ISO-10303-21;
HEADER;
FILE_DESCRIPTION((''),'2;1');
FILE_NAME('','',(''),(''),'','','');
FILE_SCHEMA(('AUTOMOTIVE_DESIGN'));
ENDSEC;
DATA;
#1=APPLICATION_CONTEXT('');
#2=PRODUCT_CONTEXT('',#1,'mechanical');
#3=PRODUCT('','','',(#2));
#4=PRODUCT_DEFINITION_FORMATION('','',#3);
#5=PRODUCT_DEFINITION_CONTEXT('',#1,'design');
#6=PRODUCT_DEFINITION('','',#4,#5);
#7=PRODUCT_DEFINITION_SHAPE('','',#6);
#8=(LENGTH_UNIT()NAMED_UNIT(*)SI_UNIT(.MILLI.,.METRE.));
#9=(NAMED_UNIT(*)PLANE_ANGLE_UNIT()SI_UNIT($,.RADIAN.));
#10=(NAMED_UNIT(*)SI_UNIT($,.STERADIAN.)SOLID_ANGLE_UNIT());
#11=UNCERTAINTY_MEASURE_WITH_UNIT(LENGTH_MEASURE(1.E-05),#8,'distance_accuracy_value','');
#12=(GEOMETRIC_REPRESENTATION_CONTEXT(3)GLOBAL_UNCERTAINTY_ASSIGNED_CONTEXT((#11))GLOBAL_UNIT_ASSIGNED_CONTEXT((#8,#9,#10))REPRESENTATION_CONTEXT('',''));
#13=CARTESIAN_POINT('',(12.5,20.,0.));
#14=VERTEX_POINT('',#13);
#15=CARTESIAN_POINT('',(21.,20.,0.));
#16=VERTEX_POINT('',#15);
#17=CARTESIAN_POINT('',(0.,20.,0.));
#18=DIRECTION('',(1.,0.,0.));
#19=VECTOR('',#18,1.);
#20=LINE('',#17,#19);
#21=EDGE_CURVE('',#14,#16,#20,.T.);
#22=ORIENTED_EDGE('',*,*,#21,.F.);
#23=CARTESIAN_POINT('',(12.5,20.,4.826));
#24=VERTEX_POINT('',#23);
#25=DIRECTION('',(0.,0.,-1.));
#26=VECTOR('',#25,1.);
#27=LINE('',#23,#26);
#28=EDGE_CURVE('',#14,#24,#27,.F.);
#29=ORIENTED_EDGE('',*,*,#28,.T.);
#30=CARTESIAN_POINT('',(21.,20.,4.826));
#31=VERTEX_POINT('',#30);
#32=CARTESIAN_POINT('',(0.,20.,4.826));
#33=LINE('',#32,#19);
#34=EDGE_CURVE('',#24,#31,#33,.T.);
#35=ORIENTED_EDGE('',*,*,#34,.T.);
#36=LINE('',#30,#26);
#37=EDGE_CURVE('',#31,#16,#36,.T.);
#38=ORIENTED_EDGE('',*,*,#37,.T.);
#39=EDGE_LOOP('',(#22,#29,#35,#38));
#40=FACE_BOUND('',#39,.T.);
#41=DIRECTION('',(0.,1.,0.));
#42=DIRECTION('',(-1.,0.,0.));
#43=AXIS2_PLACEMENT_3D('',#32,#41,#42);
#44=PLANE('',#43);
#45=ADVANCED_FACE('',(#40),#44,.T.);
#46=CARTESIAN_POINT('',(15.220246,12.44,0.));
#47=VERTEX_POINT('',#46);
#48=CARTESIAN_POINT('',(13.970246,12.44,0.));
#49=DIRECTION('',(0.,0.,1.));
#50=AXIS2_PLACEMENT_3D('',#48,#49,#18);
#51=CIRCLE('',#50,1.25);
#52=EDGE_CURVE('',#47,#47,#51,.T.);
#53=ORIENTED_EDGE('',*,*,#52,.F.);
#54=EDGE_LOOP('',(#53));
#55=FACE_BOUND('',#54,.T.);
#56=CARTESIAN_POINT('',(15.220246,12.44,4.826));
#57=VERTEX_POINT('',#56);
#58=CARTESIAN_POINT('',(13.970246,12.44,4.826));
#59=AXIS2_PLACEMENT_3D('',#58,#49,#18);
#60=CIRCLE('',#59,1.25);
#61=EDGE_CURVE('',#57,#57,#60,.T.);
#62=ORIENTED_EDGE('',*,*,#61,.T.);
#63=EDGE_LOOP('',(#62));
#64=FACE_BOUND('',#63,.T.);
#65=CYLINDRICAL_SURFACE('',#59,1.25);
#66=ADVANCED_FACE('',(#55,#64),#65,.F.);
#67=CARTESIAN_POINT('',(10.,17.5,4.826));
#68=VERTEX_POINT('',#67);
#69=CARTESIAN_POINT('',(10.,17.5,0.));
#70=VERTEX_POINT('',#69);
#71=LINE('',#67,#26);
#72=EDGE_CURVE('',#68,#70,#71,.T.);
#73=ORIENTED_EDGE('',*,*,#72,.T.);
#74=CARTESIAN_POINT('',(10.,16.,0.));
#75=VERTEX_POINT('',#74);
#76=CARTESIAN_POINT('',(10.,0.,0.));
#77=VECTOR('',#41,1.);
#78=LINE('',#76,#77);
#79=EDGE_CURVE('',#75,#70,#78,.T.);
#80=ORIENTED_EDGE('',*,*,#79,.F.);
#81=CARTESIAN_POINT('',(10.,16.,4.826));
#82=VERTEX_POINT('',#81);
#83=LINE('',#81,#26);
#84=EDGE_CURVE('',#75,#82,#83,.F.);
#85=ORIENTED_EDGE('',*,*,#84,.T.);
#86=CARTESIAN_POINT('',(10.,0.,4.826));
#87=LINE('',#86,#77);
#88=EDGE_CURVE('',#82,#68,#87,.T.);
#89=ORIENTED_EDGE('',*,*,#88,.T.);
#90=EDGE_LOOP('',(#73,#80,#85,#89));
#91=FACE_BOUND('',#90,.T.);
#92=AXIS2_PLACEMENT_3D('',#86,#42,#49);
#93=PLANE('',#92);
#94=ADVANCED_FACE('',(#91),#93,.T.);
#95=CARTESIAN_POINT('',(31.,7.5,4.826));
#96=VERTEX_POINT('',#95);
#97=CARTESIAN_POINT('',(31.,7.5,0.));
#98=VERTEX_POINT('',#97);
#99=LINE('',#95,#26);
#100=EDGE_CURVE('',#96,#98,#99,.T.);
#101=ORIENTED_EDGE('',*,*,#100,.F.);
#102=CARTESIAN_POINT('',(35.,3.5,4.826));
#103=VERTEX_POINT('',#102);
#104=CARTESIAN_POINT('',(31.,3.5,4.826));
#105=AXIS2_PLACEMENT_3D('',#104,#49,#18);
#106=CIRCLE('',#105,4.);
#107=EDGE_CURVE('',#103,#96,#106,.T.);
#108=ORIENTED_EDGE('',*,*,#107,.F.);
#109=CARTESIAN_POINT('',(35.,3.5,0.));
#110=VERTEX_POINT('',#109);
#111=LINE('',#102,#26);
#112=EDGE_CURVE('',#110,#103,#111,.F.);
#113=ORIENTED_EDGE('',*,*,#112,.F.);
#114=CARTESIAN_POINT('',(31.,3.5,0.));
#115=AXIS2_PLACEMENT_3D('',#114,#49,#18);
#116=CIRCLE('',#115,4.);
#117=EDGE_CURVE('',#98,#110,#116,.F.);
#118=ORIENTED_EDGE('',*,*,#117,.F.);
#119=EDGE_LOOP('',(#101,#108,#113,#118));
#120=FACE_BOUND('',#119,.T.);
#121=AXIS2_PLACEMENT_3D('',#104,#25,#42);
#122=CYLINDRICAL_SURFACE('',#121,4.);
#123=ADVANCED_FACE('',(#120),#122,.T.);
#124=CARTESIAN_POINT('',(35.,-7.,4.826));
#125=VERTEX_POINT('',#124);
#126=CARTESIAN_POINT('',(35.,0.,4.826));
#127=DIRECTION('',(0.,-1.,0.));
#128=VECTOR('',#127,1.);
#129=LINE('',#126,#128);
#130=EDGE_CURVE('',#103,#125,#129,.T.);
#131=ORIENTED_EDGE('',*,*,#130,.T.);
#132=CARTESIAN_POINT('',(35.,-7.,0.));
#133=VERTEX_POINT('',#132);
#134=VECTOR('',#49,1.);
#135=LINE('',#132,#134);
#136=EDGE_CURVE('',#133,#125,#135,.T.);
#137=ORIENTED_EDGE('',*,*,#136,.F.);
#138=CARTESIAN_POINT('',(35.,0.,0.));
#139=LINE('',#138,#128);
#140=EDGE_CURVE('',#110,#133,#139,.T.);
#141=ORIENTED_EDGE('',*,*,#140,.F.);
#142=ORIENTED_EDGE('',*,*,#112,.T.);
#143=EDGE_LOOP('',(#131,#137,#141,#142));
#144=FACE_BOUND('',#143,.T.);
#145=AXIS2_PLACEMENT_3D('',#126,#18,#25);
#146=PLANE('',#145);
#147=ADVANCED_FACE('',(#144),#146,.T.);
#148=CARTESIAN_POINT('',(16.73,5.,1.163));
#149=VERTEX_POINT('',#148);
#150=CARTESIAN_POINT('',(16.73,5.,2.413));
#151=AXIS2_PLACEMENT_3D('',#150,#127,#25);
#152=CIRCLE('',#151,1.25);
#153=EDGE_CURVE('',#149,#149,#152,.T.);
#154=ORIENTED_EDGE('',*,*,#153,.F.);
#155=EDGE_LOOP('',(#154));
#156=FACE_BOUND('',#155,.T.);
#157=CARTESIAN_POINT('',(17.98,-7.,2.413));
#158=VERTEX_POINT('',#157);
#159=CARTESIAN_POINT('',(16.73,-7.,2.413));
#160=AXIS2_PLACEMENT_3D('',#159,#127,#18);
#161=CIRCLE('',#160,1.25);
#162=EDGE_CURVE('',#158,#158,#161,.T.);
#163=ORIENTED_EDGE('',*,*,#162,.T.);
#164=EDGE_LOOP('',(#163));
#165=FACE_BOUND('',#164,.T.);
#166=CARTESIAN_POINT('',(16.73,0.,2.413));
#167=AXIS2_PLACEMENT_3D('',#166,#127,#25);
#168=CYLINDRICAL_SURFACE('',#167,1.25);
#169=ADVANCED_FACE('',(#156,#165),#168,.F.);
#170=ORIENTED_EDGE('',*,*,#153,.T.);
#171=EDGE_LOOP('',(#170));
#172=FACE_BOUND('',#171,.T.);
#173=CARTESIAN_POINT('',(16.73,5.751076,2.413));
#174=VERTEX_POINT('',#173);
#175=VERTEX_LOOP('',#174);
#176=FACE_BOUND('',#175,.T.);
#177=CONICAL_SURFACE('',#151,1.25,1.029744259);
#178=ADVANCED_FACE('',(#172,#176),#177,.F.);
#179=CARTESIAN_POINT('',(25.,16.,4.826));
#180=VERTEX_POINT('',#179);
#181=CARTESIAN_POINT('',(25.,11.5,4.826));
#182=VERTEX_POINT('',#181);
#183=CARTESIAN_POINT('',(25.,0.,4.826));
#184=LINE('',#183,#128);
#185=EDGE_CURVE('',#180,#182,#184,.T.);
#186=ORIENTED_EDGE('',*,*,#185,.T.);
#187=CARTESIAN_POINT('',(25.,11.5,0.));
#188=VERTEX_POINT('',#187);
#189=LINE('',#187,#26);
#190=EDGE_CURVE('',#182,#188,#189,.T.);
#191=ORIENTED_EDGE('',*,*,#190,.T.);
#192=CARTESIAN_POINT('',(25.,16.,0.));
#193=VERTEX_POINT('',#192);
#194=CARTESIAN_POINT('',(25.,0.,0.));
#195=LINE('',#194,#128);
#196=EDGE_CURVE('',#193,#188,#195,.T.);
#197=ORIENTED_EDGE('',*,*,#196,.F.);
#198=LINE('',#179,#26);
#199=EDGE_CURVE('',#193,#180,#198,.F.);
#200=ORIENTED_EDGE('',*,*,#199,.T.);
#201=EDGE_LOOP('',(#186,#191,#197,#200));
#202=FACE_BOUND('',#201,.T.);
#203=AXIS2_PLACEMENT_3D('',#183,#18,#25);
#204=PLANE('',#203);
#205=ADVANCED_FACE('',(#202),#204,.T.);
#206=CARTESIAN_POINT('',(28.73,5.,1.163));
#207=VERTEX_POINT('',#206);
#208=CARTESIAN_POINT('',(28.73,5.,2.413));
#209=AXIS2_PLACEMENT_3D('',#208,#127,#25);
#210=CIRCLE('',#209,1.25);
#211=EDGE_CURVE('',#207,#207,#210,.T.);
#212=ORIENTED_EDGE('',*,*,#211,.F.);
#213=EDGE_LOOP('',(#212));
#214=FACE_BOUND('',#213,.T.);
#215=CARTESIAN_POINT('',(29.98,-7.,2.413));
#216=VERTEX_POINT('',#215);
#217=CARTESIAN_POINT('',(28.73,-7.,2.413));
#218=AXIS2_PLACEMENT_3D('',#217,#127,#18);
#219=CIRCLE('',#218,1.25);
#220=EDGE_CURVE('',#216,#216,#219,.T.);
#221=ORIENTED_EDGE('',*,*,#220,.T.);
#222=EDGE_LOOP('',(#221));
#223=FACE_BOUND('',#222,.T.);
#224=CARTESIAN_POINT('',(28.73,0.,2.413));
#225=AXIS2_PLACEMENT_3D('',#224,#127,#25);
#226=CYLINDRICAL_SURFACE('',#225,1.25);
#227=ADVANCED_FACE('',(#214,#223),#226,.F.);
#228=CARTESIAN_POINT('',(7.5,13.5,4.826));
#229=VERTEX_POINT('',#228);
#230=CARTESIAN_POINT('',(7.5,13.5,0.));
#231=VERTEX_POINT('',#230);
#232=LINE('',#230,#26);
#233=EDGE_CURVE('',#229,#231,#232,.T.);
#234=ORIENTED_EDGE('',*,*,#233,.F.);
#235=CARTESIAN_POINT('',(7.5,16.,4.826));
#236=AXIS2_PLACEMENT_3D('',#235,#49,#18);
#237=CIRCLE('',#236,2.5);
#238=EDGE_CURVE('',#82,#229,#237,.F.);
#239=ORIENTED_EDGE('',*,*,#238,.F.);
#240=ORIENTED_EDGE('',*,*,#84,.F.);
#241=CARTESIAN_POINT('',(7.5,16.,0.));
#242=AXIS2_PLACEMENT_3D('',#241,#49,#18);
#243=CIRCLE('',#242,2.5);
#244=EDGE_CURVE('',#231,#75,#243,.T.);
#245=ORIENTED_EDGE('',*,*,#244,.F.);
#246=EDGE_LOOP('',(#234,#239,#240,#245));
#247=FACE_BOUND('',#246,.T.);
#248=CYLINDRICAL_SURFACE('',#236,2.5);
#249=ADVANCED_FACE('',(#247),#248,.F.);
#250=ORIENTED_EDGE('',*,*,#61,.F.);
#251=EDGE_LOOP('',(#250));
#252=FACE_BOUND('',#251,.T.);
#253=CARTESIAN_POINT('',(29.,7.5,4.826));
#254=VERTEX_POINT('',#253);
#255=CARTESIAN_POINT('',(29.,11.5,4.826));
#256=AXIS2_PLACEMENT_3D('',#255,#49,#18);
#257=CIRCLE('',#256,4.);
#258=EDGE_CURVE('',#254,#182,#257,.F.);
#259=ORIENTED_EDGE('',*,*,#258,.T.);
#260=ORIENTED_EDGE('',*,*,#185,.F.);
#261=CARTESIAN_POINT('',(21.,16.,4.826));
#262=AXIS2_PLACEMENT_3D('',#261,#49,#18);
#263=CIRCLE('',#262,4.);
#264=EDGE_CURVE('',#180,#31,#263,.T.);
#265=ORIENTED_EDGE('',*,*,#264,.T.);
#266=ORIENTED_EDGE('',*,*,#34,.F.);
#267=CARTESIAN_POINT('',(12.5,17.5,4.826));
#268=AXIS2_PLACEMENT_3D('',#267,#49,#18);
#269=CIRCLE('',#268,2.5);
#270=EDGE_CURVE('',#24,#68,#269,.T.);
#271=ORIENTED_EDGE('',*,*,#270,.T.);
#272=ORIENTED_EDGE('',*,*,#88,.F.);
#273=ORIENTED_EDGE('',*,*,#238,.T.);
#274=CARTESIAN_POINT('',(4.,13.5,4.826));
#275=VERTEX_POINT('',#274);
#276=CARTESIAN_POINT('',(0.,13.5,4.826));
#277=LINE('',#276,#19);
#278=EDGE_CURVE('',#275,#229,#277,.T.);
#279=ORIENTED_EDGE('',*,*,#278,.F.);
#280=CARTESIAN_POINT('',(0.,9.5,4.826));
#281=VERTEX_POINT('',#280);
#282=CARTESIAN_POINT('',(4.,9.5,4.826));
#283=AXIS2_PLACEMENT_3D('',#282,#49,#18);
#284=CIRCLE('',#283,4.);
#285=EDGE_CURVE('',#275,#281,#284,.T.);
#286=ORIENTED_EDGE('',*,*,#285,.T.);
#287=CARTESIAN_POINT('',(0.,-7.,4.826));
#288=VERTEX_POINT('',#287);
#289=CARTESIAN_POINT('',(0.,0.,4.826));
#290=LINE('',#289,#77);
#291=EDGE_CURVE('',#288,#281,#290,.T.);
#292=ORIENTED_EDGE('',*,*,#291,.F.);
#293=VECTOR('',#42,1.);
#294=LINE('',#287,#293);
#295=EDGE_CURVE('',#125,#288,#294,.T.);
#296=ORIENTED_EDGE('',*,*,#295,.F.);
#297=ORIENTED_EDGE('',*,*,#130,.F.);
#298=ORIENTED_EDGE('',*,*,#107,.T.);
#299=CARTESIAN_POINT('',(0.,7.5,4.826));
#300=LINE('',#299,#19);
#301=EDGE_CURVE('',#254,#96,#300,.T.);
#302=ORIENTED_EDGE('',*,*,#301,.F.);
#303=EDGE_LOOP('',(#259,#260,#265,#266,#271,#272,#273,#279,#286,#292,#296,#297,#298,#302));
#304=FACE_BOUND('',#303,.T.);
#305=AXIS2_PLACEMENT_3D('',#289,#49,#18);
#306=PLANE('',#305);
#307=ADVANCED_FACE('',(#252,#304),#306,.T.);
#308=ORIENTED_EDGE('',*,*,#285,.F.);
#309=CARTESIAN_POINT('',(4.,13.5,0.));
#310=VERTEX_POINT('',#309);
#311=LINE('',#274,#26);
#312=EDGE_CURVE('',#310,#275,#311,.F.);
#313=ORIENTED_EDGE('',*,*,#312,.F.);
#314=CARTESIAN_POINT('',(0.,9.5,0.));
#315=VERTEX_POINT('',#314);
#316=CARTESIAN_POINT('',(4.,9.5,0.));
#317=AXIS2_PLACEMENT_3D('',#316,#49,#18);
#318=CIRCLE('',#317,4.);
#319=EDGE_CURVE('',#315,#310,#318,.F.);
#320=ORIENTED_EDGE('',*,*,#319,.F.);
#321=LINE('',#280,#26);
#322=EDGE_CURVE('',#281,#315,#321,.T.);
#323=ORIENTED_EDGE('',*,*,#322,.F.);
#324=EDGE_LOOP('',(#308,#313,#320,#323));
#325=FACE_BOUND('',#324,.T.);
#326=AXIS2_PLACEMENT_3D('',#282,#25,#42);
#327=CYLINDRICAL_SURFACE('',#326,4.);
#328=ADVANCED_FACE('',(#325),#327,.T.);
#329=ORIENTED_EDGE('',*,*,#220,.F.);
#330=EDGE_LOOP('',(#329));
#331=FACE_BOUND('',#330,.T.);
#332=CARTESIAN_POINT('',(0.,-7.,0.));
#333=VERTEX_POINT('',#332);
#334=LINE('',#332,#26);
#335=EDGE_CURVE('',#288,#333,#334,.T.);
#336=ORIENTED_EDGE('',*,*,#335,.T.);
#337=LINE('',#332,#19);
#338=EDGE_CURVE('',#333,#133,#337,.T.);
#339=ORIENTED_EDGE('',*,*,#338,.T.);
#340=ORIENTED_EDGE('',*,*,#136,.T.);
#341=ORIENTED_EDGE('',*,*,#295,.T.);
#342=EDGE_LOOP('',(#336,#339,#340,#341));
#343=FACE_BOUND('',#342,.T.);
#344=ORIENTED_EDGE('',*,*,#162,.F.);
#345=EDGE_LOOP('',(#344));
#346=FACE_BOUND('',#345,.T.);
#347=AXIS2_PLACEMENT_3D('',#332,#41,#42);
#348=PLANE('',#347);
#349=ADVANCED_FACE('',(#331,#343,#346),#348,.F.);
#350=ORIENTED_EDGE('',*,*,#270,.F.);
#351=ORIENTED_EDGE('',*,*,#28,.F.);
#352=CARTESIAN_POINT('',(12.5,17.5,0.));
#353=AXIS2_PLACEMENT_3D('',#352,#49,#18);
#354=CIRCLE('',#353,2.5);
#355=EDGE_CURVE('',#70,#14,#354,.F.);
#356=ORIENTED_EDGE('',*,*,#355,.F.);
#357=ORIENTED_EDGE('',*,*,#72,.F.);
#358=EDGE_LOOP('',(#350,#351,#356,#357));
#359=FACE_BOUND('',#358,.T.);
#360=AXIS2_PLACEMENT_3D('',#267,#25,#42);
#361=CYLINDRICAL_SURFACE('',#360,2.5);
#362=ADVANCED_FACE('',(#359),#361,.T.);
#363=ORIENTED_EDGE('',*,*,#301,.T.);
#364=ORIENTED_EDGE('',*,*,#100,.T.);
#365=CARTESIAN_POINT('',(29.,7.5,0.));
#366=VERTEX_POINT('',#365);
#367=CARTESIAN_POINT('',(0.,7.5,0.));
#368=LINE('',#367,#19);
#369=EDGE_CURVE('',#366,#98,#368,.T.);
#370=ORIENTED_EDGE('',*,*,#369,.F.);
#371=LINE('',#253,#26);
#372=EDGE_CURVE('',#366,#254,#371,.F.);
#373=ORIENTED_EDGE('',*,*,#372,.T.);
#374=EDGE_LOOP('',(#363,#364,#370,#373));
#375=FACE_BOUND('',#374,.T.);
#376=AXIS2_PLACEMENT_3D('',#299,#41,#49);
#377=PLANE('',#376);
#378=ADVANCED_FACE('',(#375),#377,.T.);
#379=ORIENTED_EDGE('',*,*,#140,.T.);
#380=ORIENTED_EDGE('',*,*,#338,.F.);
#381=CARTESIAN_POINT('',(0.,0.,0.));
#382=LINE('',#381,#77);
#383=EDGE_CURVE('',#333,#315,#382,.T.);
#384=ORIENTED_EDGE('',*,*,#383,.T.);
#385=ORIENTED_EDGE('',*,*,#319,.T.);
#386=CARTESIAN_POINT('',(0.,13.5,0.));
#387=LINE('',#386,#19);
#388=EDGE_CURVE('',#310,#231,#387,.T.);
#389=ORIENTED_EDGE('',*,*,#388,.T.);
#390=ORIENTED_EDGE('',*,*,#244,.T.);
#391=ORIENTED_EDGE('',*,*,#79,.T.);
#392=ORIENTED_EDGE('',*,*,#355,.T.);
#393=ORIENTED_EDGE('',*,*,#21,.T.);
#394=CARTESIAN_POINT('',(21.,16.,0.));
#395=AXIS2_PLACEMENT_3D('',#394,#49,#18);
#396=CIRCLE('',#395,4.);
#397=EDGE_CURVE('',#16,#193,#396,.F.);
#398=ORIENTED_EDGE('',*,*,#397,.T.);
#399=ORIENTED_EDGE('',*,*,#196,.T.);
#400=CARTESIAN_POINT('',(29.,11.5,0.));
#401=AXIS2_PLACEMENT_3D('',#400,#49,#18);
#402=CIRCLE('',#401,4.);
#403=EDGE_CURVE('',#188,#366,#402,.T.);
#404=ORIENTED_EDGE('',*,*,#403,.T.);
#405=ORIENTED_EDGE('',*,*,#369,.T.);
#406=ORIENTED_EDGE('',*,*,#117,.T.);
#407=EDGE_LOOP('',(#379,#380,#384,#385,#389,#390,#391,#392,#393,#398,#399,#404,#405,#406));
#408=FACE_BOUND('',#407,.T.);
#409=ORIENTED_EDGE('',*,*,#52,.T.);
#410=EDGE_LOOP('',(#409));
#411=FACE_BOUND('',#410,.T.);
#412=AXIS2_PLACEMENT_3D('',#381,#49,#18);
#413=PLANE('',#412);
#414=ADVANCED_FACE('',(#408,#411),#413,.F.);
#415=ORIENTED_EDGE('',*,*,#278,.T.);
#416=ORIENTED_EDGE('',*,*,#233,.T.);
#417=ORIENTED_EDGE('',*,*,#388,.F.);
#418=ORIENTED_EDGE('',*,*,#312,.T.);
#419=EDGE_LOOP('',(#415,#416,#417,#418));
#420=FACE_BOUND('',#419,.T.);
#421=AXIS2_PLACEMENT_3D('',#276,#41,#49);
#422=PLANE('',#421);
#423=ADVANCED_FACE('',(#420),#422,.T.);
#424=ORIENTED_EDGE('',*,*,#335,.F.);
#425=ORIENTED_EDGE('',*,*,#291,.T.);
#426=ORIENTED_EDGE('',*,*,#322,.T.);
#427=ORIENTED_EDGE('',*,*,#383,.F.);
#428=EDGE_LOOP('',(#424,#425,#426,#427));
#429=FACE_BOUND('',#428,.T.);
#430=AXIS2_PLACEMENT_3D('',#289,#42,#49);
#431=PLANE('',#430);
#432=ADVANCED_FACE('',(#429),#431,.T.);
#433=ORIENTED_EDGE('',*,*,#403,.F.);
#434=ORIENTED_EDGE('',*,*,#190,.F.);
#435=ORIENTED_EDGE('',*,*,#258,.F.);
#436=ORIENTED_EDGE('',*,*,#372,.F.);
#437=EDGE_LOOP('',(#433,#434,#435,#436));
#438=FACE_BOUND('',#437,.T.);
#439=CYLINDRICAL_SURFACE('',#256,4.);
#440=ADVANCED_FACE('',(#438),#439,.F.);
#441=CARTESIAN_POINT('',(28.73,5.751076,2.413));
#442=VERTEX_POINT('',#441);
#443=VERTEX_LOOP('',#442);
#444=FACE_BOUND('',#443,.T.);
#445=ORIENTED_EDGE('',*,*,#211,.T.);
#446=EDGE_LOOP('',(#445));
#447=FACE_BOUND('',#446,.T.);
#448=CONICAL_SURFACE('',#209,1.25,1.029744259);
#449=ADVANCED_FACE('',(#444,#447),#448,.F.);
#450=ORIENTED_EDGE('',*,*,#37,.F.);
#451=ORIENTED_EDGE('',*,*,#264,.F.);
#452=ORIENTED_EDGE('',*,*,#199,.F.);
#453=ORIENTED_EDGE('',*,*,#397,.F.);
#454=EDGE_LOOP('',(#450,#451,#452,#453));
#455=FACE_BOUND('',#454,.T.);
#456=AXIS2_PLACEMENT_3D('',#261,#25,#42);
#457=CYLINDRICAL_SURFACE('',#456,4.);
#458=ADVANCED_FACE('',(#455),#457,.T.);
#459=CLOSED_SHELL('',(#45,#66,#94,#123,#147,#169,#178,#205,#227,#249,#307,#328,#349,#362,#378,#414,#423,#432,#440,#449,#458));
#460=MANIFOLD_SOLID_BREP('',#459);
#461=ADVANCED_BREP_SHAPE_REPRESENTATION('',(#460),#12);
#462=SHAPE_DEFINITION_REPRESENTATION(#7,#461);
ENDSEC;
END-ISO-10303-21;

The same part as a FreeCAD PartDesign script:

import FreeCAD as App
import Part
import Sketcher

V = App.Vector
Q = App.Units.Quantity


def edges_at(feature, points):
    """Names of the edges that pass closest to the given points."""
    edges = feature.Shape.Edges
    near = lambda p: min(range(len(edges)), key=lambda i: edges[i].distToShape(Part.Vertex(*p))[0])
    return sorted({f"Edge{near(p) + 1}" for p in points})


def add_polygon(sketch, points):
    """Adds a closed chain of lines whose ends are joined by coincident constraints."""
    first, n = sketch.GeometryCount, len(points)
    for a, b in zip(points, points[1:] + points[:1]):
        sketch.addGeometry(Part.LineSegment(App.Vector(*a, 0), App.Vector(*b, 0)), False)
    for i in range(n):
        sketch.addConstraint(Sketcher.Constraint("Coincident", first + i, 2, first + (i + 1) % n, 1))

doc = App.newDocument("Part")
body = doc.addObject("PartDesign::Body", "Body")

# Sketch on XY plane
sketch1 = body.newObject("Sketcher::SketchObject", "Sketch")
sketch1.AttachmentSupport = (doc.getObject("XY_Plane"), [""])
sketch1.MapMode = "FlatFace"
add_polygon(sketch1, [(0, 14), (0, 0), (35, 0), (35, 8), (25, 8), (25, 20), (10, 20), (10, 14)])  # lines 0-7
sketch1.addConstraint([
    Sketcher.Constraint("Vertical", 0),
    Sketcher.Constraint("Horizontal", 1),
    Sketcher.Constraint("Vertical", 2),
    Sketcher.Constraint("Horizontal", 3),
    Sketcher.Constraint("Vertical", 4),
    Sketcher.Constraint("Horizontal", 5),
    Sketcher.Constraint("Vertical", 6),
    Sketcher.Constraint("Horizontal", 7),
    Sketcher.Constraint("Coincident", 0, 2, -1, 1),
    Sketcher.Constraint("Equal", 3, 7),
    Sketcher.Constraint("DistanceX", 1, 1, 1, 2, Q("35 mm")),
    Sketcher.Constraint("DistanceX", 3, 2, 3, 1, Q("10 mm")),
    Sketcher.Constraint("DistanceY", 0, 2, 0, 1, Q("13.5 mm")),
    Sketcher.Constraint("DistanceY", 2, 1, 2, 2, Q("7.5 mm")),
    Sketcher.Constraint("DistanceY", 4, 1, 4, 2, Q("12.5 mm")),
])
pad1 = body.newObject("PartDesign::Pad", "Pad")
pad1.Profile = sketch1
pad1.Length = 4.826

# Sketch on XY plane
sketch2 = body.newObject("Sketcher::SketchObject", "Sketch001")
sketch2.AttachmentSupport = (doc.getObject("XY_Plane"), [""])
sketch2.MapMode = "FlatFace"
sketch2.AttachmentOffset = App.Placement(V(0, 0, 4.826), App.Rotation())
sketch2.addGeometry(Part.Circle(V(14, 12.4, 0), V(0, 0, 1), 1.2), False)
sketch2.addConstraint([
    Sketcher.Constraint("Diameter", 0, Q("2.5 mm")),
    Sketcher.Constraint("DistanceY", -1, 1, 0, 3, Q("12.44 mm")),
    Sketcher.Constraint("DistanceX", -1, 1, 0, 3, Q("13.970246 mm")),
])
doc.recompute()
hole = body.newObject("PartDesign::Hole", "Hole")
hole.Profile = sketch2
hole.ThreadType = "None"
hole.Diameter = 2.5
hole.DepthType = "ThroughAll"

# Sketch on XZ plane
sketch3 = body.newObject("Sketcher::SketchObject", "Sketch002")
sketch3.AttachmentSupport = (doc.getObject("XZ_Plane"), [""])
sketch3.MapMode = "FlatFace"
sketch3.addGeometry([
    Part.Circle(V(16.7, 2.4, 0), V(0, 0, 1), 1.2),
    Part.Circle(V(28.7, 2.4, 0), V(0, 0, 1), 1.2),
], False)
sketch3.addConstraint([
    Sketcher.Constraint("Equal", 0, 1),
    Sketcher.Constraint("Horizontal", 0, 3, 1, 3),
    Sketcher.Constraint("Diameter", 0, Q("2.5 mm")),
    Sketcher.Constraint("DistanceX", 0, 3, 1, 3, Q("12 mm")),
    Sketcher.Constraint("DistanceX", -1, 1, 0, 3, Q("16.73 mm")),
    Sketcher.Constraint("DistanceY", -1, 1, 0, 3, Q("2.413 mm")),
])
doc.recompute()
hole2 = body.newObject("PartDesign::Hole", "Hole001")
hole2.Profile = sketch3
hole2.ThreadType = "None"
hole2.Diameter = 2.5
hole2.DepthType = "Dimension"
hole2.Depth = 5
hole2.DrillPoint = "Angled"
hole2.DrillPointAngle = 118
doc.recompute()

fillet = body.newObject("PartDesign::Fillet", "Fillet")
fillet.Base = (hole2, edges_at(hole2, [(10, 20, 2.413), (10, 13.5, 2.413)]))
fillet.Radius = 2.5
doc.recompute()

fillet2 = body.newObject("PartDesign::Fillet", "Fillet001")
fillet2.Base = (fillet, edges_at(fillet, [
    (25, 20, 2.413),
    (25, 7.5, 2.413),
    (35, 7.5, 2.413),
    (0, 13.5, 2.413),
]))
fillet2.Radius = 4

# Sketch on XZ plane
sketch4 = body.newObject("Sketcher::SketchObject", "Sketch003")
sketch4.AttachmentSupport = (doc.getObject("XZ_Plane"), [""])
sketch4.MapMode = "FlatFace"
add_polygon(sketch4, [(0, 4.8), (0, 0), (35, 0), (35, 4.8)])  # lines 0-3
sketch4.addGeometry(Part.Circle(V(16.7, 2.4, 0), V(0, 0, 1), 1.2), False)  # 4
sketch4.addGeometry(Part.Circle(V(28.7, 2.4, 0), V(0, 0, 1), 1.2), False)  # 5
sketch4.addConstraint([
    Sketcher.Constraint("Vertical", 0),
    Sketcher.Constraint("Horizontal", 1),
    Sketcher.Constraint("Vertical", 2),
    Sketcher.Constraint("Horizontal", 3),
    Sketcher.Constraint("Coincident", 0, 2, -1, 1),
    Sketcher.Constraint("Equal", 4, 5),
    Sketcher.Constraint("Horizontal", 4, 3, 5, 3),
    Sketcher.Constraint("Diameter", 4, Q("2.5 mm")),
    Sketcher.Constraint("DistanceX", 1, 1, 1, 2, Q("35 mm")),
    Sketcher.Constraint("DistanceX", 4, 3, 5, 3, Q("12 mm")),
    Sketcher.Constraint("DistanceY", 0, 2, 0, 1, Q("4.826 mm")),
    Sketcher.Constraint("DistanceX", -1, 1, 4, 3, Q("16.73 mm")),
    Sketcher.Constraint("DistanceY", -1, 1, 4, 3, Q("2.413 mm")),
])
pad2 = body.newObject("PartDesign::Pad", "Pad001")
pad2.Profile = sketch4
pad2.Length = 7

doc.recompute()
